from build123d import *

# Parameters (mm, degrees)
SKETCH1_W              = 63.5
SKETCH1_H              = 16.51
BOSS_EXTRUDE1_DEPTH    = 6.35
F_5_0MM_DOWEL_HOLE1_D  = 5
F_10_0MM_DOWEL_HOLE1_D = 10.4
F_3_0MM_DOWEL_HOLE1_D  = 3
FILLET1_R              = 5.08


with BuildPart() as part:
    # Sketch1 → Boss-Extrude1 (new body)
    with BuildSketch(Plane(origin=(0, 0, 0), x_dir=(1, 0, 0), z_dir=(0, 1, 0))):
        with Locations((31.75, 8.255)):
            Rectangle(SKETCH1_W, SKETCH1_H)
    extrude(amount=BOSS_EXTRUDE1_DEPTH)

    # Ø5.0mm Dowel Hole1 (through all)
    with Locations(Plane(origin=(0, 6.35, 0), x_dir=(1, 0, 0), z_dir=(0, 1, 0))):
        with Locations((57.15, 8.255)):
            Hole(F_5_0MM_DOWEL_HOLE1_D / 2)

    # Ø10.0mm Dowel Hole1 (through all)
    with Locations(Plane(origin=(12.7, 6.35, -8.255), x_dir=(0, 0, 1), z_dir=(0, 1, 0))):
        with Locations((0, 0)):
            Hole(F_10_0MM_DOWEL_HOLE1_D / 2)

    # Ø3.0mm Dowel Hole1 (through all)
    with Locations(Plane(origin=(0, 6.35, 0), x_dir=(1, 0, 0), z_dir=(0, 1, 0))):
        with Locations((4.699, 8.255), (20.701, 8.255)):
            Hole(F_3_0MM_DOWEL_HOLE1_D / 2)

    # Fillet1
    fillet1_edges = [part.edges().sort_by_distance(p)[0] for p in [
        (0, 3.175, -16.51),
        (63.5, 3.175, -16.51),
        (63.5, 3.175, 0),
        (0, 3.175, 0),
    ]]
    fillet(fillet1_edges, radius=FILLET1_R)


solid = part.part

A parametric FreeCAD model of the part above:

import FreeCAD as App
import Part
import Sketcher

V = App.Vector
Q = App.Units.Quantity


def edges_at(feature, points):
    """Names of the edges that pass closest to the given points."""
    edges = feature.Shape.Edges
    near = lambda p: min(range(len(edges)), key=lambda i: edges[i].distToShape(Part.Vertex(*p))[0])
    return sorted({f"Edge{near(p) + 1}" for p in points})


def add_polygon(sketch, points):
    """Adds a closed chain of lines whose ends are joined by coincident constraints."""
    first, n = sketch.GeometryCount, len(points)
    for a, b in zip(points, points[1:] + points[:1]):
        sketch.addGeometry(Part.LineSegment(App.Vector(*a, 0), App.Vector(*b, 0)), False)
    for i in range(n):
        sketch.addConstraint(Sketcher.Constraint("Coincident", first + i, 2, first + (i + 1) % n, 1))

doc = App.newDocument("Part")
params = doc.addObject("Spreadsheet::Sheet", "Params")
for row, (alias, value) in enumerate([
    ("sketch1_width", "2.5 in"),
    ("sketch1_height", "0.65 in"),
    ("pad1_length", "0.25 in"),
    ("hole_diameter", "5 mm"),
    ("hole2_diameter", "10.4 mm"),
    ("hole3_diameter", "3 mm"),
    ("fillet_radius", "0.2 in"),
], start=1):
    params.set(f"A{row}", alias)
    params.set(f"B{row}", "=" + value)
    params.setAlias(f"B{row}", alias)

body = doc.addObject("PartDesign::Body", "Body")

sketch1 = body.newObject("Sketcher::SketchObject", "Sketch")
sketch1.AttachmentSupport = (doc.getObject("XZ_Plane"), [""])
sketch1.MapMode = "FlatFace"
add_polygon(sketch1, [(0, -17), (0, 0), (64, 0), (64, -17)])
sketch1.addConstraint([
    Sketcher.Constraint("Vertical", 0),
    Sketcher.Constraint("Horizontal", 1),
    Sketcher.Constraint("Vertical", 2),
    Sketcher.Constraint("Horizontal", 3),
    Sketcher.Constraint("Coincident", 0, 2, -1, 1),
    Sketcher.Constraint("DistanceX", 1, 1, 1, 2, Q("2.5 in")),
    Sketcher.Constraint("DistanceY", 0, 1, 0, 2, Q("0.65 in")),
])
sketch1.setExpression("Constraints[9]", "Params.sketch1_width")
sketch1.setExpression("Constraints[10]", "Params.sketch1_height")
pad1 = body.newObject("PartDesign::Pad", "Pad")
pad1.Profile = sketch1
pad1.setExpression("Length", "Params.pad1_length")
pad1.Reversed = True

sketch2 = body.newObject("Sketcher::SketchObject", "Sketch001")
sketch2.AttachmentSupport = (doc.getObject("XZ_Plane"), [""])
sketch2.MapMode = "FlatFace"
sketch2.AttachmentOffset = App.Placement(V(0, 0, -0.25 * 25.4), App.Rotation())
sketch2.addGeometry(Part.Circle(V(57.1, -8.3, 0), V(0, 0, 1), 2.5), False)
sketch2.addConstraint([
    Sketcher.Constraint("Diameter", 0, 5.0),
    Sketcher.Constraint("DistanceX", -1, 1, 0, 3, Q("2.25 in")),
    Sketcher.Constraint("DistanceY", 0, 3, -1, 1, Q("0.325 in")),
])
doc.recompute()
hole = body.newObject("PartDesign::Hole", "Hole")
hole.Profile = sketch2
hole.ThreadType = "None"
hole.setExpression("Diameter", "Params.hole_diameter")
hole.DepthType = "ThroughAll"
hole.Reversed = True

sketch3 = body.newObject("Sketcher::SketchObject", "Sketch002")
sketch3.AttachmentSupport = (doc.getObject("XZ_Plane"), [""])
sketch3.MapMode = "FlatFace"
sketch3.AttachmentOffset = App.Placement(V(0, 0, -0.25 * 25.4), App.Rotation())
sketch3.addGeometry(Part.Circle(V(13, -8, 0), V(0, 0, 1), 5), False)
sketch3.addConstraint([
    Sketcher.Constraint("DistanceX", -1, 1, 0, 3, Q("0.5 in")),
    Sketcher.Constraint("Diameter", 0, 10.4),
    Sketcher.Constraint("DistanceY", 0, 3, -1, 1, Q("0.325 in")),
])
doc.recompute()
hole2 = body.newObject("PartDesign::Hole", "Hole001")
hole2.Profile = sketch3
hole2.ThreadType = "None"
hole2.setExpression("Diameter", "Params.hole2_diameter")
hole2.DepthType = "ThroughAll"
hole2.Reversed = True

sketch4 = body.newObject("Sketcher::SketchObject", "Sketch003")
sketch4.AttachmentSupport = (doc.getObject("XZ_Plane"), [""])
sketch4.MapMode = "FlatFace"
sketch4.AttachmentOffset = App.Placement(V(0, 0, -0.25 * 25.4), App.Rotation())
sketch4.addGeometry([
    Part.Circle(V(4.7, -8.3, 0), V(0, 0, 1), 1.5),
    Part.Circle(V(20.7, -8.3, 0), V(0, 0, 1), 1.5),
], False)
sketch4.addConstraint([
    Sketcher.Constraint("Equal", 0, 1),
    Sketcher.Constraint("Horizontal", 0, 3, 1, 3),
    Sketcher.Constraint("Diameter", 0, 3.0),
    Sketcher.Constraint("DistanceX", 0, 3, 1, 3, Q("0.63 in")),
    Sketcher.Constraint("DistanceX", -1, 1, 0, 3, Q("0.185 in")),
    Sketcher.Constraint("DistanceY", 0, 3, -1, 1, Q("0.325 in")),
])
doc.recompute()
hole3 = body.newObject("PartDesign::Hole", "Hole002")
hole3.Profile = sketch4
hole3.ThreadType = "None"
hole3.setExpression("Diameter", "Params.hole3_diameter")
hole3.DepthType = "ThroughAll"
hole3.Reversed = True
doc.recompute()

fillet = body.newObject("PartDesign::Fillet", "Fillet")
fillet.Base = (hole3, edges_at(hole3, [
    (0, 3.175, -16.51),
    (63.5, 3.175, -16.51),
    (63.5, 3.175, 0),
    (0, 3.175, 0),
]))
fillet.setExpression("Radius", "Params.fillet_radius")

doc.recompute()
